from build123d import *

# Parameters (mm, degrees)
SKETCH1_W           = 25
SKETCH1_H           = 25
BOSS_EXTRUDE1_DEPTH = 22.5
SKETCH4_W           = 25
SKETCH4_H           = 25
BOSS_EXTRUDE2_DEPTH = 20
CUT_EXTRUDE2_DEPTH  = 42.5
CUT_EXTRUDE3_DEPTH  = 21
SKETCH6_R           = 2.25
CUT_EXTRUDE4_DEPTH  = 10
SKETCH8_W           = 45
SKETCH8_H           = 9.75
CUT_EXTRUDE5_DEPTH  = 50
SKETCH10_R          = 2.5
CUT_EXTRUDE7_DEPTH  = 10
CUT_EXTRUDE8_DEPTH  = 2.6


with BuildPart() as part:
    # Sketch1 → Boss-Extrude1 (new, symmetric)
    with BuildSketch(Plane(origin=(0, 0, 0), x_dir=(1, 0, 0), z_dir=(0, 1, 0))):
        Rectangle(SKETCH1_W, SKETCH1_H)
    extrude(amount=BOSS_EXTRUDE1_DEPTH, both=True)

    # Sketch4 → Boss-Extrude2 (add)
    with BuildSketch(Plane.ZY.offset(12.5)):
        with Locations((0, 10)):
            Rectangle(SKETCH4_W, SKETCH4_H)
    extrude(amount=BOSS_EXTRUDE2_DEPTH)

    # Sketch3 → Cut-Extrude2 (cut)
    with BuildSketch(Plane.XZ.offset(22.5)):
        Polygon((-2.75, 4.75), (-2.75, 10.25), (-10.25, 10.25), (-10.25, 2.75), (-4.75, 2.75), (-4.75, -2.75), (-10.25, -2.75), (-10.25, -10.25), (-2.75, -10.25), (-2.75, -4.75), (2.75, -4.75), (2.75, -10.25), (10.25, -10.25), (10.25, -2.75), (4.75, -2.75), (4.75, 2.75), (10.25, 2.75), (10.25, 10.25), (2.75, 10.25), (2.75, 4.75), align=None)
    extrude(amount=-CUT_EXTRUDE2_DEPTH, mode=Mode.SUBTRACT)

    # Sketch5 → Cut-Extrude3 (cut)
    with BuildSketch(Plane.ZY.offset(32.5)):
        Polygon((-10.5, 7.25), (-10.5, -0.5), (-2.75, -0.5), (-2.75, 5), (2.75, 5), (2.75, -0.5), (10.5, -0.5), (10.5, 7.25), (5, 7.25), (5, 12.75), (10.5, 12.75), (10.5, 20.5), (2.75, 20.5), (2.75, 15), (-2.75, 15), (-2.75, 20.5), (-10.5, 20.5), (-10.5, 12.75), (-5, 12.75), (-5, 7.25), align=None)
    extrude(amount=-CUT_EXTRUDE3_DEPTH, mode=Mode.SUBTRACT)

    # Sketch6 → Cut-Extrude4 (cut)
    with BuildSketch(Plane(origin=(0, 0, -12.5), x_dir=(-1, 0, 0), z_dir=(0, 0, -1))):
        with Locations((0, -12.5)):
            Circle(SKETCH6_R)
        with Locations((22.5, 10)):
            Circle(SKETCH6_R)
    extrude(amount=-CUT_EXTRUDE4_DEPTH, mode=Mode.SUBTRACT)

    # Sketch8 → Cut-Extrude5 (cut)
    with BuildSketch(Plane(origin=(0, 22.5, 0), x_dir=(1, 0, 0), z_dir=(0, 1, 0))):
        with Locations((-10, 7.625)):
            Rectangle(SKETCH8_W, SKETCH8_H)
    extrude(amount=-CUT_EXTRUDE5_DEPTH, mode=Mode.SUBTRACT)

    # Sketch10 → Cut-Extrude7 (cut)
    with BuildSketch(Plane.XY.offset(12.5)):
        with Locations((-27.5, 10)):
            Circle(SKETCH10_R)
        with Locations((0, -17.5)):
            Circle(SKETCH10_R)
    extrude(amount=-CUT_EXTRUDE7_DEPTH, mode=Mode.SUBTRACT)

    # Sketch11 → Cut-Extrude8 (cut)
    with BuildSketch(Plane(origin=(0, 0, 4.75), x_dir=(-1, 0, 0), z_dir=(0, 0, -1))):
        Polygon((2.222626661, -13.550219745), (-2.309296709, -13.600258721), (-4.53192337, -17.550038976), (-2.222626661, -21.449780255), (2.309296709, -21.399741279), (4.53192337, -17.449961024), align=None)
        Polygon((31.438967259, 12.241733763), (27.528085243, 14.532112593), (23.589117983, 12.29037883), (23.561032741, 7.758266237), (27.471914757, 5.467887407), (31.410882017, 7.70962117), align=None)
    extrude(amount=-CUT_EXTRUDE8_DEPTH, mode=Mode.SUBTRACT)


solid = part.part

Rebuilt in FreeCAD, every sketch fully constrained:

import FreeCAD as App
import Part
import Sketcher


def add_polygon(sketch, points):
    """Adds a closed chain of lines whose ends are joined by coincident constraints."""
    first, n = sketch.GeometryCount, len(points)
    for a, b in zip(points, points[1:] + points[:1]):
        sketch.addGeometry(Part.LineSegment(App.Vector(*a, 0), App.Vector(*b, 0)), False)
    for i in range(n):
        sketch.addConstraint(Sketcher.Constraint("Coincident", first + i, 2, first + (i + 1) % n, 1))

doc = App.newDocument("Part")
params = doc.addObject("Spreadsheet::Sheet", "Params")
for row, (alias, value) in enumerate([
    ("sketch1_width", "25 mm"),
    ("pad1_length", "45 mm"),
    ("sketch2_width", "25 mm"),
    ("pad2_length", "20 mm"),
    ("sketch3_width", "7.5 mm"),
    ("sketch3_width2", "5.5 mm"),
    ("pocket1_length", "42.5 mm"),
    ("sketch4_width", "5.5 mm"),
    ("pocket2_length", "21 mm"),
    ("sketch5_diameter", "4.5 mm"),
    ("pocket3_length", "10 mm"),
    ("sketch6_width", "45 mm"),
    ("sketch6_height", "9.75 mm"),
    ("pocket4_length", "50 mm"),
    ("sketch7_diameter", "5 mm"),
    ("pocket5_length", "10 mm"),
    ("pocket6_length", "2.6 mm"),
], start=1):
    params.set(f"A{row}", alias)
    params.set(f"B{row}", "=" + value)
    params.setAlias(f"B{row}", alias)

body = doc.addObject("PartDesign::Body", "Body")

sketch1 = body.newObject("Sketcher::SketchObject", "Sketch")
sketch1.AttachmentSupport = (doc.getObject("XZ_Plane"), [""])
sketch1.MapMode = "FlatFace"
add_polygon(sketch1, [(-12, -12), (-12, 12), (12, 12), (12, -12)])
sketch1.addConstraint([
    Sketcher.Constraint("Vertical", 0),
    Sketcher.Constraint("Horizontal", 1),
    Sketcher.Constraint("Vertical", 2),
    Sketcher.Constraint("Horizontal", 3),
    Sketcher.Constraint("Symmetric", 0, 2, 2, 2, -1, 1),
    Sketcher.Constraint("Equal", 3, 0),
    Sketcher.Constraint("DistanceX", 1, 1, 1, 2, 25.0),
])
sketch1.setExpression("Constraints[10]", "Params.sketch1_width")
pad1 = body.newObject("PartDesign::Pad", "Pad")
pad1.Profile = sketch1
pad1.setExpression("Length", "Params.pad1_length")
pad1.Midplane = True

sketch2 = body.newObject("Sketcher::SketchObject", "Sketch001")
sketch2.AttachmentSupport = (doc.getObject("YZ_Plane"), [""])
sketch2.MapMode = "FlatFace"
sketch2.AttachmentOffset = App.Placement(App.Vector(0, 0, -12.5), App.Rotation())
add_polygon(sketch2, [(22, -12), (-2, -12), (-2, 12), (22, 12)])
sketch2.addConstraint([
    Sketcher.Constraint("Horizontal", 0),
    Sketcher.Constraint("Vertical", 1),
    Sketcher.Constraint("Horizontal", 2),
    Sketcher.Constraint("Vertical", 3),
    Sketcher.Constraint("Equal", 2, 1),
    Sketcher.Constraint("DistanceX", 0, 2, 0, 1, 25.0),
    Sketcher.Constraint("DistanceX", 0, 2, -1, 1, 2.5),
    Sketcher.Constraint("DistanceY", 0, 2, -1, 1, 12.5),
])
sketch2.setExpression("Constraints[9]", "Params.sketch2_width")
pad2 = body.newObject("PartDesign::Pad", "Pad001")
pad2.Profile = sketch2
pad2.setExpression("Length", "Params.pad2_length")
pad2.Reversed = True

sketch3 = body.newObject("Sketcher::SketchObject", "Sketch002")
sketch3.AttachmentSupport = (doc.getObject("XZ_Plane"), [""])
sketch3.MapMode = "FlatFace"
sketch3.AttachmentOffset = App.Placement(App.Vector(0, 0, 22.5), App.Rotation())
add_polygon(sketch3, [(-3, 5), (-3, 10), (-10, 10), (-10, 3), (-5, 3), (-5, -3), (-10, -3), (-10, -10), (-3, -10), (-3, -5), (3, -5), (3, -10), (10, -10), (10, -3), (5, -3), (5, 3), (10, 3), (10, 10), (3, 10), (3, 5)])
sketch3.addConstraint([
    Sketcher.Constraint("Vertical", 0),
    Sketcher.Constraint("Horizontal", 1),
    Sketcher.Constraint("Vertical", 2),
    Sketcher.Constraint("Horizontal", 3),
    Sketcher.Constraint("Vertical", 4),
    Sketcher.Constraint("Horizontal", 5),
    Sketcher.Constraint("Vertical", 6),
    Sketcher.Constraint("Horizontal", 7),
    Sketcher.Constraint("Vertical", 8),
    Sketcher.Constraint("Horizontal", 9),
    Sketcher.Constraint("Vertical", 10),
    Sketcher.Constraint("Horizontal", 11),
    Sketcher.Constraint("Vertical", 12),
    Sketcher.Constraint("Horizontal", 13),
    Sketcher.Constraint("Vertical", 14),
    Sketcher.Constraint("Horizontal", 15),
    Sketcher.Constraint("Vertical", 16),
    Sketcher.Constraint("Horizontal", 17),
    Sketcher.Constraint("Vertical", 18),
    Sketcher.Constraint("Horizontal", 19),
    Sketcher.Constraint("Symmetric", 0, 2, 10, 2, -1, 1),
    Sketcher.Constraint("Symmetric", 2, 2, 12, 2, -1, 1),
    Sketcher.Constraint("Symmetric", 4, 2, 14, 2, -1, 1),
    Sketcher.Constraint("Symmetric", 6, 2, 16, 2, -1, 1),
    Sketcher.Constraint("Symmetric", 8, 2, 18, 2, -1, 1),
    Sketcher.Constraint("Symmetric", 7, 2, 10, 2, -2),
    Sketcher.Constraint("Symmetric", 5, 2, 12, 2, -2),
    Sketcher.Constraint("Equal", 5, 9),
    Sketcher.Constraint("Equal", 19, 0),
    Sketcher.Constraint("Equal", 17, 2),
    Sketcher.Constraint("Equal", 0, 4),
    Sketcher.Constraint("DistanceX", 1, 2, 1, 1, 7.5),
    Sketcher.Constraint("DistanceX", 3, 1, 3, 2, 5.5),
])
sketch3.setExpression("Constraints[51]", "Params.sketch3_width")
sketch3.setExpression("Constraints[52]", "Params.sketch3_width2")
pocket1 = body.newObject("PartDesign::Pocket", "Pocket")
pocket1.Profile = sketch3
pocket1.setExpression("Length", "Params.pocket1_length")

sketch4 = body.newObject("Sketcher::SketchObject", "Sketch003")
sketch4.AttachmentSupport = (doc.getObject("YZ_Plane"), [""])
sketch4.MapMode = "FlatFace"
sketch4.AttachmentOffset = App.Placement(App.Vector(0, 0, -32.5), App.Rotation())
add_polygon(sketch4, [(7, -10), (0, -10), (0, -3), (5, -3), (5, 3), (0, 3), (0, 10), (7, 10), (7, 5), (13, 5), (13, 10), (20, 10), (20, 3), (15, 3), (15, -3), (20, -3), (20, -10), (13, -10), (13, -5), (7, -5)])
sketch4.addConstraint([
    Sketcher.Constraint("Horizontal", 0),
    Sketcher.Constraint("Vertical", 1),
    Sketcher.Constraint("Horizontal", 2),
    Sketcher.Constraint("Vertical", 3),
    Sketcher.Constraint("Horizontal", 4),
    Sketcher.Constraint("Vertical", 5),
    Sketcher.Constraint("Horizontal", 6),
    Sketcher.Constraint("Vertical", 7),
    Sketcher.Constraint("Horizontal", 8),
    Sketcher.Constraint("Vertical", 9),
    Sketcher.Constraint("Horizontal", 10),
    Sketcher.Constraint("Vertical", 11),
    Sketcher.Constraint("Horizontal", 12),
    Sketcher.Constraint("Vertical", 13),
    Sketcher.Constraint("Horizontal", 14),
    Sketcher.Constraint("Vertical", 15),
    Sketcher.Constraint("Horizontal", 16),
    Sketcher.Constraint("Vertical", 17),
    Sketcher.Constraint("Horizontal", 18),
    Sketcher.Constraint("Vertical", 19),
    Sketcher.Constraint("Symmetric", 1, 2, 4, 2, -1),
    Sketcher.Constraint("Symmetric", 11, 2, 14, 2, -1),
    Sketcher.Constraint("Symmetric", 9, 2, 16, 2, -1),
    Sketcher.Constraint("Symmetric", 7, 2, 18, 2, -1),
    Sketcher.Constraint("Horizontal", 6, 2, 9, 2),
    Sketcher.Constraint("Horizontal", 4, 2, 11, 2),
    Sketcher.Constraint("Horizontal", 0, 2, 15, 2),
    Sketcher.Constraint("Equal", 4, 8),
    Sketcher.Constraint("Equal", 6, 10),
    Sketcher.Constraint("Equal", 8, 12),
    Sketcher.Constraint("Equal", 16, 1),
    Sketcher.Constraint("Equal", 18, 3),
    Sketcher.Constraint("Equal", 3, 7),
    Sketcher.Constraint("DistanceX", 2, 1, 2, 2, 5.5),
    Sketcher.Constraint("DistanceX", -1, 1, 2, 2, 5.0),
    Sketcher.Constraint("DistanceY", -1, 1, 7, 2, 5.0),
])
sketch4.setExpression("Constraints[53]", "Params.sketch4_width")
pocket2 = body.newObject("PartDesign::Pocket", "Pocket001")
pocket2.Profile = sketch4
pocket2.setExpression("Length", "Params.pocket2_length")
pocket2.Reversed = True

sketch5 = body.newObject("Sketcher::SketchObject", "Sketch004")
sketch5.AttachmentSupport = (doc.getObject("XY_Plane"), [""])
sketch5.MapMode = "FlatFace"
sketch5.AttachmentOffset = App.Placement(App.Vector(0, 0, -12.5), App.Rotation())
sketch5.addGeometry([
    Part.Circle(App.Vector(0, -12.5, 0), App.Vector(0, 0, 1), 2.2),
    Part.Circle(App.Vector(-22.5, 10, 0), App.Vector(0, 0, 1), 2.2),
], False)
sketch5.addConstraint([
    Sketcher.Constraint("Equal", 0, 1),
    Sketcher.Constraint("PointOnObject", 0, 3, -2),
    Sketcher.Constraint("Diameter", 0, 4.5),
    Sketcher.Constraint("DistanceY", -1, 1, 1, 3, 10.0),
    Sketcher.Constraint("DistanceY", 0, 3, -1, 1, 12.5),
    Sketcher.Constraint("DistanceX", 1, 3, -1, 1, 22.5),
])
sketch5.setExpression("Constraints[2]", "Params.sketch5_diameter")
pocket3 = body.newObject("PartDesign::Pocket", "Pocket002")
pocket3.Profile = sketch5
pocket3.setExpression("Length", "Params.pocket3_length")
pocket3.Reversed = True

sketch6 = body.newObject("Sketcher::SketchObject", "Sketch005")
sketch6.AttachmentSupport = (doc.getObject("XZ_Plane"), [""])
sketch6.MapMode = "FlatFace"
sketch6.AttachmentOffset = App.Placement(App.Vector(0, 0, -22.5), App.Rotation())
add_polygon(sketch6, [(-32, -12), (-32, -3), (12, -3), (12, -12)])
sketch6.addConstraint([
    Sketcher.Constraint("Vertical", 0),
    Sketcher.Constraint("Horizontal", 1),
    Sketcher.Constraint("Vertical", 2),
    Sketcher.Constraint("Horizontal", 3),
    Sketcher.Constraint("DistanceX", 1, 1, 1, 2, 45.0),
    Sketcher.Constraint("DistanceY", 0, 1, 0, 2, 9.75),
    Sketcher.Constraint("DistanceX", 0, 2, -1, 1, 32.5),
    Sketcher.Constraint("DistanceY", 2, 2, -1, 1, 12.5),
])
sketch6.setExpression("Constraints[8]", "Params.sketch6_width")
sketch6.setExpression("Constraints[9]", "Params.sketch6_height")
pocket4 = body.newObject("PartDesign::Pocket", "Pocket003")
pocket4.Profile = sketch6
pocket4.setExpression("Length", "Params.pocket4_length")
pocket4.Reversed = True

sketch7 = body.newObject("Sketcher::SketchObject", "Sketch006")
sketch7.AttachmentSupport = (doc.getObject("XY_Plane"), [""])
sketch7.MapMode = "FlatFace"
sketch7.AttachmentOffset = App.Placement(App.Vector(0, 0, 12.5), App.Rotation())
sketch7.addGeometry([
    Part.Circle(App.Vector(-27.5, 10, 0), App.Vector(0, 0, 1), 2.5),
    Part.Circle(App.Vector(0, -17.5, 0), App.Vector(0, 0, 1), 2.5),
], False)
sketch7.addConstraint([
    Sketcher.Constraint("Equal", 0, 1),
    Sketcher.Constraint("PointOnObject", 1, 3, -2),
    Sketcher.Constraint("Diameter", 0, 5.0),
    Sketcher.Constraint("DistanceY", -1, 1, 0, 3, 10.0),
    Sketcher.Constraint("DistanceX", 0, 3, -1, 1, 27.5),
    Sketcher.Constraint("DistanceY", 1, 3, -1, 1, 17.5),
])
sketch7.setExpression("Constraints[2]", "Params.sketch7_diameter")
pocket5 = body.newObject("PartDesign::Pocket", "Pocket004")
pocket5.Profile = sketch7
pocket5.setExpression("Length", "Params.pocket5_length")

sketch8 = body.newObject("Sketcher::SketchObject", "Sketch007")
sketch8.AttachmentSupport = (doc.getObject("XY_Plane"), [""])
sketch8.MapMode = "FlatFace"
sketch8.AttachmentOffset = App.Placement(App.Vector(0, 0, 4.75), App.Rotation())
add_polygon(sketch8, [(-2.2, -13.6), (2.3, -13.6), (4.5, -17.6), (2.2, -21.4), (-2.3, -21.4), (-4.5, -17.4)])
add_polygon(sketch8, [(-31.4, 12.2), (-27.5, 14.5), (-23.6, 12.3), (-23.6, 7.8), (-27.5, 5.5), (-31.4, 7.7)])
sketch8.addConstraint([
    Sketcher.Constraint("Parallel", 0, 3),
    Sketcher.Constraint("Parallel", 1, 4),
    Sketcher.Constraint("Parallel", 2, 5),
    Sketcher.Constraint("Parallel", 6, 9),
    Sketcher.Constraint("Parallel", 7, 10),
    Sketcher.Constraint("Parallel", 8, 11),
    Sketcher.Constraint("Equal", 0, 1),
    Sketcher.Constraint("Equal", 1, 2),
    Sketcher.Constraint("Equal", 2, 3),
    Sketcher.Constraint("Equal", 5, 6),
    Sketcher.Constraint("Equal", 6, 7),
    Sketcher.Constraint("Equal", 7, 8),
    Sketcher.Constraint("Equal", 8, 9),
    Sketcher.Constraint("Distance", 0, 4.5322),
    Sketcher.Constraint("DistanceY", 5, 2, 7, 2, 25.840599),
    Sketcher.Constraint("DistanceY", 0, 2, -1, 1, 13.600259),
    Sketcher.Constraint("DistanceY", 1, 2, -1, 1, 17.550039),
    Sketcher.Constraint("DistanceY", 2, 2, -1, 1, 21.44978),
    Sketcher.Constraint("DistanceY", 3, 2, -1, 1, 21.399741),
    Sketcher.Constraint("DistanceY", -1, 1, 10, 2, 7.709621),
    Sketcher.Constraint("DistanceX", 6, 2, 5, 2, 25.305459),
    Sketcher.Constraint("DistanceY", 0, 2, 6, 2, 28.132371),
    Sketcher.Constraint("DistanceX", 8, 2, 4, 2, 19.029109),
    Sketcher.Constraint("DistanceX", -1, 1, 0, 2, 2.309297),
])
pocket6 = body.newObject("PartDesign::Pocket", "Pocket005")
pocket6.Profile = sketch8
pocket6.setExpression("Length", "Params.pocket6_length")
pocket6.Reversed = True

doc.recompute()
